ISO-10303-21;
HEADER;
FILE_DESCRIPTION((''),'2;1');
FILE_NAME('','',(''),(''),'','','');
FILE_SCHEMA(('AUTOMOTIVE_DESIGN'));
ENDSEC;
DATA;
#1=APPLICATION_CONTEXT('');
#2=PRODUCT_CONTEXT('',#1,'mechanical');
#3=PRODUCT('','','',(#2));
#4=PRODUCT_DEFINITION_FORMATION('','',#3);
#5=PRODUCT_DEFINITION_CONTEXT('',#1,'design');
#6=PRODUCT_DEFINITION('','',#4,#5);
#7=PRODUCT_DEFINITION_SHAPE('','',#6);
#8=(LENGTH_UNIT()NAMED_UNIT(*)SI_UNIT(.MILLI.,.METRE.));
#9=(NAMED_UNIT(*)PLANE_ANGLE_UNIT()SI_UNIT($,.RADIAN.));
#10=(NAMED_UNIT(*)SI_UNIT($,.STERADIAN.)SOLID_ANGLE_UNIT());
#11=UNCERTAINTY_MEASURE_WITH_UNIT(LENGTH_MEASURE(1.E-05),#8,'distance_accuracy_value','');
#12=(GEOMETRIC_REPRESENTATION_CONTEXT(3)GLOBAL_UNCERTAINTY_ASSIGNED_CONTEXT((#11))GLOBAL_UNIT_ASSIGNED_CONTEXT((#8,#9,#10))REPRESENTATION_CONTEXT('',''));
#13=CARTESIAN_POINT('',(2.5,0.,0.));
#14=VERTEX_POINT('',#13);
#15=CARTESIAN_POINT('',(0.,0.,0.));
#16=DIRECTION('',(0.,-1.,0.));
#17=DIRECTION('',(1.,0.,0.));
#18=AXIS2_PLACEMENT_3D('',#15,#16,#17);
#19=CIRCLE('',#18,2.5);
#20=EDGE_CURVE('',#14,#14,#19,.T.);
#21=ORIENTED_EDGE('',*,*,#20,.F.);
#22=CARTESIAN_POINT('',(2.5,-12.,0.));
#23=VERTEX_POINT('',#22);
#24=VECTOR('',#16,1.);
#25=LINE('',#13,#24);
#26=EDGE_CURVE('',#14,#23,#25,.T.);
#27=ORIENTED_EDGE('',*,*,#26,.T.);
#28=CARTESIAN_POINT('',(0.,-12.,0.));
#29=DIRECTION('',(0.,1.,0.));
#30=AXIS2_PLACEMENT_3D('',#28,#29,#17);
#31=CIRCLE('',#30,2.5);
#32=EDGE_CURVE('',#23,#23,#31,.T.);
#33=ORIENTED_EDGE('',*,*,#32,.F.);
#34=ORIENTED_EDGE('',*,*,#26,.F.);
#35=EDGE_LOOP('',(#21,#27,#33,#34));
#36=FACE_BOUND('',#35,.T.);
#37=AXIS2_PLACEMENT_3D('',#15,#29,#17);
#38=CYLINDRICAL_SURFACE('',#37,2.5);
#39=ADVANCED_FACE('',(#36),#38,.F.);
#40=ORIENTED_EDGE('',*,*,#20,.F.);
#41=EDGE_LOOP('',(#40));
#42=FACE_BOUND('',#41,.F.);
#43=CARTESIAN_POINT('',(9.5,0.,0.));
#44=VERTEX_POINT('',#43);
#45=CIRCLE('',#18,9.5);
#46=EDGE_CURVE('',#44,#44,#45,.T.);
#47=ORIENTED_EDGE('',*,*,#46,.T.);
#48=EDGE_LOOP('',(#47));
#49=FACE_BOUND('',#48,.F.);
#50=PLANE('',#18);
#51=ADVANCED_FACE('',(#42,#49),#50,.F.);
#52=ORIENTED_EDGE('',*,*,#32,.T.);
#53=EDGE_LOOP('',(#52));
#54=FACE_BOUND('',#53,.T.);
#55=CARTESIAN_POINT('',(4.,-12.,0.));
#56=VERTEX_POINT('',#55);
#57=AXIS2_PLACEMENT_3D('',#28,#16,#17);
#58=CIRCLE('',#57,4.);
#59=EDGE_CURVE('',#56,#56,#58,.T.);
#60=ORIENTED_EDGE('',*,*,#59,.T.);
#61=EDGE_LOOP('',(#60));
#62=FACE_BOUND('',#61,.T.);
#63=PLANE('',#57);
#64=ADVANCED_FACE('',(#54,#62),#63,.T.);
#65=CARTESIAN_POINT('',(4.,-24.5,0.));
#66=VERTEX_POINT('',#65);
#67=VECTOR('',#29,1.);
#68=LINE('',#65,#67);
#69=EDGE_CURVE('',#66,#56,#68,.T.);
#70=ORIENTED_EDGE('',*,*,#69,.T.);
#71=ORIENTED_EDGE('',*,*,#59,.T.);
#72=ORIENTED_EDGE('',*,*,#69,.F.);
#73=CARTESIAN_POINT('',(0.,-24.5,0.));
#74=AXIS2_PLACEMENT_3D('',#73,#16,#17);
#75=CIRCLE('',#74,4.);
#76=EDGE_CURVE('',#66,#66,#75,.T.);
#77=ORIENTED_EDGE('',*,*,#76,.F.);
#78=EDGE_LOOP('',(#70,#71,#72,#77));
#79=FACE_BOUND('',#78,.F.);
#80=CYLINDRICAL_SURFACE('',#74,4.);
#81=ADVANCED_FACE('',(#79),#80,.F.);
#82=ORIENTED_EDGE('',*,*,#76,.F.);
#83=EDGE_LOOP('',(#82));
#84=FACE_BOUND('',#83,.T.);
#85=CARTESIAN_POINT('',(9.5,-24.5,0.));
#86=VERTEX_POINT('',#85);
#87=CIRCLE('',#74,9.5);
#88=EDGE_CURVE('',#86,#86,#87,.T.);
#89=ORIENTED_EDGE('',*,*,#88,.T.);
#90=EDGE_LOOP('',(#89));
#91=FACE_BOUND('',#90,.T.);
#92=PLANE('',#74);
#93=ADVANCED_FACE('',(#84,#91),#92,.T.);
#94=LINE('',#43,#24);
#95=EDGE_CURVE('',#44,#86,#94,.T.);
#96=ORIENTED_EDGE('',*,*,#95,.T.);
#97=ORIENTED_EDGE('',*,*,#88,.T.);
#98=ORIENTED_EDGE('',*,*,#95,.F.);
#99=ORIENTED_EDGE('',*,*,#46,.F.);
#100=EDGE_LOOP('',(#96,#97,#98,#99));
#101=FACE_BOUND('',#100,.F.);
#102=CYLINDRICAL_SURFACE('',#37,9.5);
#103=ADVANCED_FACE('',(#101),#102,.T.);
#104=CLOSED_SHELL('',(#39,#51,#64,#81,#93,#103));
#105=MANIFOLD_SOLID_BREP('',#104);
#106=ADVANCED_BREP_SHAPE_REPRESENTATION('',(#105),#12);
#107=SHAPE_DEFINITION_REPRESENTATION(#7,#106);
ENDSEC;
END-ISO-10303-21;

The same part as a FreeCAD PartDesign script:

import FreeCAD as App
import Part
import Sketcher

V = App.Vector
Q = App.Units.Quantity

doc = App.newDocument("Part")
body = doc.addObject("PartDesign::Body", "Body")

sketch1 = doc.addObject("Sketcher::SketchObject", "Sketch")
body.addObject(sketch1)
sketch1.AttachmentSupport = (doc.XZ_Plane, [""])
sketch1.MapMode = "FlatFace"
sketch1.addGeometry(Part.Circle(V(0, 0, 0), V(0, 0, 1), 9.5), False)
sketch1.addGeometry(Part.Circle(V(0, 0, 0), V(0, 0, 1), 2.5), False)
sketch1.addConstraint(Sketcher.Constraint("Coincident", 0, 3, -1, 1))
sketch1.addConstraint(Sketcher.Constraint("Coincident", 1, 3, -1, 1))
sketch1.addConstraint(Sketcher.Constraint("Diameter", 0, Q("19 mm")))
sketch1.addConstraint(Sketcher.Constraint("Diameter", 1, Q("5 mm")))
pad1 = doc.addObject("PartDesign::Pad", "Pad")
body.addObject(pad1)
pad1.Profile = sketch1
pad1.Length = 24.5

sketch2 = doc.addObject("Sketcher::SketchObject", "Sketch001")
body.addObject(sketch2)
sketch2.AttachmentSupport = (doc.XZ_Plane, [""])
sketch2.MapMode = "FlatFace"
sketch2.AttachmentOffset = App.Placement(V(0, 0, 24.5), App.Rotation())
sketch2.addGeometry(Part.Circle(V(0, 0, 0), V(0, 0, 1), 4), False)
sketch2.addConstraint(Sketcher.Constraint("Coincident", 0, 3, -1, 1))
sketch2.addConstraint(Sketcher.Constraint("Diameter", 0, Q("8 mm")))
pocket1 = doc.addObject("PartDesign::Pocket", "Pocket")
body.addObject(pocket1)
pocket1.Profile = sketch2
pocket1.Length = 12.5

doc.recompute()
